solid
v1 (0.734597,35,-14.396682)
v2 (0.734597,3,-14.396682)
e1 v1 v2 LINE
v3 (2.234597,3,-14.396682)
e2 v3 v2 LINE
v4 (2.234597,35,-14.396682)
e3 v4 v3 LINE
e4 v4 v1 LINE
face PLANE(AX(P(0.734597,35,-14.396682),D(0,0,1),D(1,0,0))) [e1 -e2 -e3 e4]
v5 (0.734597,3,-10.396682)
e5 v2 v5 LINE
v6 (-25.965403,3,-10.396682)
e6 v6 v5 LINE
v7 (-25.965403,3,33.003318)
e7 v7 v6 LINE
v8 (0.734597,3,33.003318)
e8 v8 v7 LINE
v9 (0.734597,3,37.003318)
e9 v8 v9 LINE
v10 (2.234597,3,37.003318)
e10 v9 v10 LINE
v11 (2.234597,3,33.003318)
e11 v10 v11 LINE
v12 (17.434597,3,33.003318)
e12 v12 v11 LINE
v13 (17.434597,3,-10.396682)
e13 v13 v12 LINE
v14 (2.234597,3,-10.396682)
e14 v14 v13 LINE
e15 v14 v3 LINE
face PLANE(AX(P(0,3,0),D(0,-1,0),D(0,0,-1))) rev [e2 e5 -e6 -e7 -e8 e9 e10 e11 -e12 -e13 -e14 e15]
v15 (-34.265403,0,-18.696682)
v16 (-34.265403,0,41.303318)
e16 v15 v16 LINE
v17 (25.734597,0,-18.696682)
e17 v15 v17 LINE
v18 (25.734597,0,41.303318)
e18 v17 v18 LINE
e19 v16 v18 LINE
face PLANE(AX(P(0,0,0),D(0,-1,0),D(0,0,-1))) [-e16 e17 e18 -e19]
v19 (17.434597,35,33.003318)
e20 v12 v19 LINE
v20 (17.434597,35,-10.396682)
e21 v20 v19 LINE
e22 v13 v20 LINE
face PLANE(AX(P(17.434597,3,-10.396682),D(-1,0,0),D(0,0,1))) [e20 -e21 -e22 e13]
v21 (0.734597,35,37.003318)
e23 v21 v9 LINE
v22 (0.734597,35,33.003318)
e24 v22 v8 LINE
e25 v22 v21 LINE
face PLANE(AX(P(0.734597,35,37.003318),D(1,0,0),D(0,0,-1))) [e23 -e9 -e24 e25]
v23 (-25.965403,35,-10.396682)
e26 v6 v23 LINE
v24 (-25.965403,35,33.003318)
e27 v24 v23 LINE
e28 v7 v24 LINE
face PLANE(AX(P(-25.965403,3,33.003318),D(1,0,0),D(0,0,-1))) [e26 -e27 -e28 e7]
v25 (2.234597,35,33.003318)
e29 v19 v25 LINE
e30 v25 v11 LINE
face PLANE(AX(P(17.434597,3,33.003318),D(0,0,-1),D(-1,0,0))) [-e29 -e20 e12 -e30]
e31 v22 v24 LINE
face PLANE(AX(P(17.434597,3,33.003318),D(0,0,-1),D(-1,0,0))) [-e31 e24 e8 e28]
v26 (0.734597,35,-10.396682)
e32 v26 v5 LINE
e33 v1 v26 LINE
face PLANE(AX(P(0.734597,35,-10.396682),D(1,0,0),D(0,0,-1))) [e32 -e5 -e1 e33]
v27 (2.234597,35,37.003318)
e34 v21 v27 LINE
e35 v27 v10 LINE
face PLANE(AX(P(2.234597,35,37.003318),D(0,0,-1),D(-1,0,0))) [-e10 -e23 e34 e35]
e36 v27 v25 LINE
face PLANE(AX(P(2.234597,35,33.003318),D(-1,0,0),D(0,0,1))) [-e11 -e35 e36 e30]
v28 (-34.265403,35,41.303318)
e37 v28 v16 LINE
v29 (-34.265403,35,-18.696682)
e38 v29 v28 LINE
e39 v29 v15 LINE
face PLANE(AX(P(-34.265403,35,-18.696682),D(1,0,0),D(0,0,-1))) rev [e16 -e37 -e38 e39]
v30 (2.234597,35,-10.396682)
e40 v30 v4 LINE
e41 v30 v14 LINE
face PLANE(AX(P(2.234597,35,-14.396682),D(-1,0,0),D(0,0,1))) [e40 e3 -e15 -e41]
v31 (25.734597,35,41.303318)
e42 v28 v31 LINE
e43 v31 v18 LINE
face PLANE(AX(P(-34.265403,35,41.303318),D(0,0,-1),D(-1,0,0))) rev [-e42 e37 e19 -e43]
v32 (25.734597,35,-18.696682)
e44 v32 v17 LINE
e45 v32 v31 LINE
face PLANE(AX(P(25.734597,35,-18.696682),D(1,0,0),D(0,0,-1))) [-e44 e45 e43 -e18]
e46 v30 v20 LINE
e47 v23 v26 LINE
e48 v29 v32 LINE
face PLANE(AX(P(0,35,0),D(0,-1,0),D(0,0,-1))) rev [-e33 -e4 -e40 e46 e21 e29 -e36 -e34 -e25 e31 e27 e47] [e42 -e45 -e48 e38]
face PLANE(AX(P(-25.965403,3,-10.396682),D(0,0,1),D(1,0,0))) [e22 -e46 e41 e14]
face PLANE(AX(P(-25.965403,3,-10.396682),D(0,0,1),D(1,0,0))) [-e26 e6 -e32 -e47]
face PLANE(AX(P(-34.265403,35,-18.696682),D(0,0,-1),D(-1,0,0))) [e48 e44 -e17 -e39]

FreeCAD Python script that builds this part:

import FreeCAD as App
import Part
import Sketcher

V = App.Vector


def add_polygon(sketch, points):
    """Adds a closed chain of lines whose ends are joined by coincident constraints."""
    first, n = sketch.GeometryCount, len(points)
    for a, b in zip(points, points[1:] + points[:1]):
        sketch.addGeometry(Part.LineSegment(App.Vector(*a, 0), App.Vector(*b, 0)), False)
    for i in range(n):
        sketch.addConstraint(Sketcher.Constraint("Coincident", first + i, 2, first + (i + 1) % n, 1))

doc = App.newDocument("Part")
body = doc.addObject("PartDesign::Body", "Body")

sketch1 = body.newObject("Sketcher::SketchObject", "Sketch")
sketch1.AttachmentSupport = (doc.getObject("XZ_Plane"), [""])
sketch1.MapMode = "FlatFace"
add_polygon(sketch1, [(-34, -19), (-34, 41), (26, 41), (26, -19)])
sketch1.addConstraint(Sketcher.Constraint("Vertical", 0))
sketch1.addConstraint(Sketcher.Constraint("Horizontal", 1))
sketch1.addConstraint(Sketcher.Constraint("Vertical", 2))
sketch1.addConstraint(Sketcher.Constraint("Horizontal", 3))
sketch1.addConstraint(Sketcher.Constraint("Equal", 3, 0))
sketch1.addConstraint(Sketcher.Constraint("DistanceX", 1, 1, 1, 2, 60.0))
sketch1.addConstraint(Sketcher.Constraint("DistanceX", 0, 2, -1, 1, 34.265403))
sketch1.addConstraint(Sketcher.Constraint("DistanceY", -1, 1, 0, 2, 41.303318))
pad1 = body.newObject("PartDesign::Pad", "Pad")
pad1.Profile = sketch1
pad1.Length = 35
pad1.Reversed = True

sketch2 = body.newObject("Sketcher::SketchObject", "Sketch001")
sketch2.AttachmentSupport = (doc.getObject("XZ_Plane"), [""])
sketch2.MapMode = "FlatFace"
sketch2.AttachmentOffset = App.Placement(V(0, 0, -35), App.Rotation())
add_polygon(sketch2, [(-26, -10), (-26, 33), (17, 33), (17, -10)])
sketch2.addConstraint(Sketcher.Constraint("Vertical", 0))
sketch2.addConstraint(Sketcher.Constraint("Horizontal", 1))
sketch2.addConstraint(Sketcher.Constraint("Vertical", 2))
sketch2.addConstraint(Sketcher.Constraint("Horizontal", 3))
sketch2.addConstraint(Sketcher.Constraint("Equal", 3, 0))
sketch2.addConstraint(Sketcher.Constraint("DistanceX", 1, 1, 1, 2, 43.4))
sketch2.addConstraint(Sketcher.Constraint("DistanceX", 0, 2, -1, 1, 25.965403))
sketch2.addConstraint(Sketcher.Constraint("DistanceY", -1, 1, 0, 2, 33.003318))
pocket1 = body.newObject("PartDesign::Pocket", "Pocket")
pocket1.Profile = sketch2
pocket1.Length = 32
pocket1.Reversed = True

sketch3 = body.newObject("Sketcher::SketchObject", "Sketch002")
sketch3.AttachmentSupport = (doc.getObject("XZ_Plane"), [""])
sketch3.MapMode = "FlatFace"
sketch3.AttachmentOffset = App.Placement(V(0, 0, -3), App.Rotation())
add_polygon(sketch3, [(0.7, -14.4), (0.7, -10.4), (2.2, -10.4), (2.2, -14.4)])
add_polygon(sketch3, [(0.7, 33), (0.7, 37), (2.2, 37), (2.2, 33)])
sketch3.addConstraint(Sketcher.Constraint("Vertical", 0))
sketch3.addConstraint(Sketcher.Constraint("Horizontal", 1))
sketch3.addConstraint(Sketcher.Constraint("Vertical", 2))
sketch3.addConstraint(Sketcher.Constraint("Horizontal", 3))
sketch3.addConstraint(Sketcher.Constraint("Vertical", 4))
sketch3.addConstraint(Sketcher.Constraint("Horizontal", 5))
sketch3.addConstraint(Sketcher.Constraint("Vertical", 6))
sketch3.addConstraint(Sketcher.Constraint("Horizontal", 7))
sketch3.addConstraint(Sketcher.Constraint("Vertical", 3, 2, 4, 2))
sketch3.addConstraint(Sketcher.Constraint("Vertical", 2, 2, 5, 2))
sketch3.addConstraint(Sketcher.Constraint("Equal", 2, 4))
sketch3.addConstraint(Sketcher.Constraint("DistanceY", 0, 1, 0, 2, 4.0))
sketch3.addConstraint(Sketcher.Constraint("DistanceX", 1, 1, 1, 2, 1.5))
sketch3.addConstraint(Sketcher.Constraint("DistanceY", 0, 2, 4, 2, 47.4))
sketch3.addConstraint(Sketcher.Constraint("DistanceX", -1, 1, 0, 2, 0.734597))
sketch3.addConstraint(Sketcher.Constraint("DistanceY", 0, 2, -1, 1, 10.396682))
pocket2 = body.newObject("PartDesign::Pocket", "Pocket001")
pocket2.Profile = sketch3
pocket2.Length = 32

sketch4 = body.newObject("Sketcher::SketchObject", "Sketch003")
sketch4.AttachmentSupport = (doc.getObject("YZ_Plane"), [""])
sketch4.MapMode = "FlatFace"
sketch4.AttachmentOffset = App.Placement(V(0, 0, -34.265403), App.Rotation())
add_polygon(sketch4, [(32.5, -7), (29, -7), (29, -3.5), (32.5, -3.5)])
sketch4.addConstraint(Sketcher.Constraint("Horizontal", 0))
sketch4.addConstraint(Sketcher.Constraint("Vertical", 1))
sketch4.addConstraint(Sketcher.Constraint("Horizontal", 2))
sketch4.addConstraint(Sketcher.Constraint("Vertical", 3))
sketch4.addConstraint(Sketcher.Constraint("Equal", 2, 1))
sketch4.addConstraint(Sketcher.Constraint("DistanceX", 0, 2, 0, 1, 3.5))
sketch4.addConstraint(Sketcher.Constraint("DistanceX", -1, 1, 0, 2, 29.0))
sketch4.addConstraint(Sketcher.Constraint("DistanceY", 0, 2, -1, 1, 6.996682))
pocket3 = body.newObject("PartDesign::Pocket", "Pocket002")
pocket3.Profile = sketch4
pocket3.Length = 76
pocket3.Reversed = True

sketch5 = body.newObject("Sketcher::SketchObject", "Sketch004")
sketch5.AttachmentSupport = (doc.getObject("YZ_Plane"), [""])
sketch5.MapMode = "FlatFace"
sketch5.AttachmentOffset = App.Placement(V(0, 0, -34.265403), App.Rotation())
add_polygon(sketch5, [(33, -8), (28, -8), (28, -3), (33, -3)])
sketch5.addConstraint(Sketcher.Constraint("Horizontal", 0))
sketch5.addConstraint(Sketcher.Constraint("Vertical", 1))
sketch5.addConstraint(Sketcher.Constraint("Horizontal", 2))
sketch5.addConstraint(Sketcher.Constraint("Vertical", 3))
sketch5.addConstraint(Sketcher.Constraint("DistanceY", 1, 1, 1, 2, 5.571739))
sketch5.addConstraint(Sketcher.Constraint("DistanceX", 0, 2, 0, 1, 5.147803))
sketch5.addConstraint(Sketcher.Constraint("DistanceY", 0, 2, -1, 1, 8.19777))
sketch5.addConstraint(Sketcher.Constraint("DistanceX", -1, 1, 0, 2, 28.249823))
pad2 = body.newObject("PartDesign::Pad", "Pad001")
pad2.Profile = sketch5
pad2.Length = 8.3

sketch6 = body.newObject("Sketcher::SketchObject", "Sketch005")
sketch6.AttachmentSupport = (doc.getObject("YZ_Plane"), [""])
sketch6.MapMode = "FlatFace"
sketch6.AttachmentOffset = App.Placement(V(0, 0, 25.734597), App.Rotation())
add_polygon(sketch6, [(33.4, -7.4), (33.4, -2.7), (28.2, -2.7), (28.2, -7.4)])
sketch6.addConstraint(Sketcher.Constraint("Vertical", 0))
sketch6.addConstraint(Sketcher.Constraint("Horizontal", 1))
sketch6.addConstraint(Sketcher.Constraint("Vertical", 2))
sketch6.addConstraint(Sketcher.Constraint("Horizontal", 3))
sketch6.addConstraint(Sketcher.Constraint("DistanceX", 1, 2, 1, 1, 5.180907))
sketch6.addConstraint(Sketcher.Constraint("DistanceY", 0, 1, 0, 2, 4.794896))
sketch6.addConstraint(Sketcher.Constraint("DistanceX", -1, 1, 0, 2, 33.424191))
sketch6.addConstraint(Sketcher.Constraint("DistanceY", 0, 2, -1, 1, 2.654167))
pad3 = body.newObject("PartDesign::Pad", "Pad002")
pad3.Profile = sketch6
pad3.Length = 8.3
pad3.Reversed = True

doc.recompute()
